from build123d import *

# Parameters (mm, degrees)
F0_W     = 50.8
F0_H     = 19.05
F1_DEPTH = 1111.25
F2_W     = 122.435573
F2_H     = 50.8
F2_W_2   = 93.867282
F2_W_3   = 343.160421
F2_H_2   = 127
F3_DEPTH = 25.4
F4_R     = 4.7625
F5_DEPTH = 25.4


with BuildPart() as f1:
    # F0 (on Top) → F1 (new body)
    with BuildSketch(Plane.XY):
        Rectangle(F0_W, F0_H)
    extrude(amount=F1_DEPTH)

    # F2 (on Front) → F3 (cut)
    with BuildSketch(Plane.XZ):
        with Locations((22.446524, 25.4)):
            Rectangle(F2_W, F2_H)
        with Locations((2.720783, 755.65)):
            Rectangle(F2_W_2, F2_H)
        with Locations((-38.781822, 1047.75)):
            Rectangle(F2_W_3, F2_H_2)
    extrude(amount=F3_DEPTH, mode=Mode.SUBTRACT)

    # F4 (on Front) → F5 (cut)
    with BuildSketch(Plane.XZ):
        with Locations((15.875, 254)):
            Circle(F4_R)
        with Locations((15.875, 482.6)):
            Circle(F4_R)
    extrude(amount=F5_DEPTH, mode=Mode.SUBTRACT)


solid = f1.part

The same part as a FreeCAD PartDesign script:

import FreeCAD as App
import Part
import Sketcher
Q = App.Units.Quantity

doc = App.newDocument("Part")
body = doc.addObject("PartDesign::Body", "Body")

# Sketch on XY plane
sketch1 = body.newObject("Sketcher::SketchObject", "Sketch")
sketch1.AttachmentSupport = (doc.getObject("XY_Plane"), [""])
sketch1.MapMode = "FlatFace"
sketch1.addGeometry(Part.LineSegment(App.Vector(-25, 10, 0), App.Vector(-25, -10, 0)), False)
sketch1.addGeometry(Part.LineSegment(App.Vector(-25, -10, 0), App.Vector(25, -10, 0)), False)
sketch1.addGeometry(Part.LineSegment(App.Vector(25, -10, 0), App.Vector(25, 10, 0)), False)
sketch1.addGeometry(Part.LineSegment(App.Vector(25, 10, 0), App.Vector(-25, 10, 0)), False)
sketch1.addConstraint(Sketcher.Constraint("Coincident", 0, 2, 1, 1))
sketch1.addConstraint(Sketcher.Constraint("Coincident", 1, 2, 2, 1))
sketch1.addConstraint(Sketcher.Constraint("Coincident", 2, 2, 3, 1))
sketch1.addConstraint(Sketcher.Constraint("Coincident", 3, 2, 0, 1))
sketch1.addConstraint(Sketcher.Constraint("Vertical", 0))
sketch1.addConstraint(Sketcher.Constraint("Horizontal", 1))
sketch1.addConstraint(Sketcher.Constraint("Vertical", 2))
sketch1.addConstraint(Sketcher.Constraint("Horizontal", 3))
sketch1.addConstraint(Sketcher.Constraint("Symmetric", 0, 2, 2, 2, -1, 1))
sketch1.addConstraint(Sketcher.Constraint("DistanceX", 1, 1, 1, 2, Q("2 in")))
sketch1.addConstraint(Sketcher.Constraint("DistanceY", 0, 2, 0, 1, Q("0.75 in")))
pad1 = body.newObject("PartDesign::Pad", "Pad")
pad1.Profile = sketch1
pad1.Length = Q("43.75 in")

# Sketch on XZ plane
sketch2 = body.newObject("Sketcher::SketchObject", "Sketch001")
sketch2.AttachmentSupport = (doc.getObject("XZ_Plane"), [""])
sketch2.MapMode = "FlatFace"
sketch2.addGeometry(Part.LineSegment(App.Vector(-39, 51, 0), App.Vector(-39, 0, 0)), False)
sketch2.addGeometry(Part.LineSegment(App.Vector(-39, 0, 0), App.Vector(84, 0, 0)), False)
sketch2.addGeometry(Part.LineSegment(App.Vector(84, 0, 0), App.Vector(84, 51, 0)), False)
sketch2.addGeometry(Part.LineSegment(App.Vector(84, 51, 0), App.Vector(-39, 51, 0)), False)
sketch2.addGeometry(Part.LineSegment(App.Vector(-44, 781, 0), App.Vector(-44, 730, 0)), False)
sketch2.addGeometry(Part.LineSegment(App.Vector(-44, 730, 0), App.Vector(50, 730, 0)), False)
sketch2.addGeometry(Part.LineSegment(App.Vector(50, 730, 0), App.Vector(50, 781, 0)), False)
sketch2.addGeometry(Part.LineSegment(App.Vector(50, 781, 0), App.Vector(-44, 781, 0)), False)
sketch2.addGeometry(Part.LineSegment(App.Vector(-210, 1111, 0), App.Vector(-210, 984, 0)), False)
sketch2.addGeometry(Part.LineSegment(App.Vector(-210, 984, 0), App.Vector(133, 984, 0)), False)
sketch2.addGeometry(Part.LineSegment(App.Vector(133, 984, 0), App.Vector(133, 1111, 0)), False)
sketch2.addGeometry(Part.LineSegment(App.Vector(133, 1111, 0), App.Vector(-210, 1111, 0)), False)
sketch2.addConstraint(Sketcher.Constraint("Coincident", 0, 2, 1, 1))
sketch2.addConstraint(Sketcher.Constraint("Coincident", 1, 2, 2, 1))
sketch2.addConstraint(Sketcher.Constraint("Coincident", 2, 2, 3, 1))
sketch2.addConstraint(Sketcher.Constraint("Coincident", 3, 2, 0, 1))
sketch2.addConstraint(Sketcher.Constraint("Coincident", 4, 2, 5, 1))
sketch2.addConstraint(Sketcher.Constraint("Coincident", 5, 2, 6, 1))
sketch2.addConstraint(Sketcher.Constraint("Coincident", 6, 2, 7, 1))
sketch2.addConstraint(Sketcher.Constraint("Coincident", 7, 2, 4, 1))
sketch2.addConstraint(Sketcher.Constraint("Coincident", 8, 2, 9, 1))
sketch2.addConstraint(Sketcher.Constraint("Coincident", 9, 2, 10, 1))
sketch2.addConstraint(Sketcher.Constraint("Coincident", 10, 2, 11, 1))
sketch2.addConstraint(Sketcher.Constraint("Coincident", 11, 2, 8, 1))
sketch2.addConstraint(Sketcher.Constraint("Vertical", 0))
sketch2.addConstraint(Sketcher.Constraint("Horizontal", 1))
sketch2.addConstraint(Sketcher.Constraint("Vertical", 2))
sketch2.addConstraint(Sketcher.Constraint("Horizontal", 3))
sketch2.addConstraint(Sketcher.Constraint("Vertical", 4))
sketch2.addConstraint(Sketcher.Constraint("Horizontal", 5))
sketch2.addConstraint(Sketcher.Constraint("Vertical", 6))
sketch2.addConstraint(Sketcher.Constraint("Horizontal", 7))
sketch2.addConstraint(Sketcher.Constraint("Vertical", 8))
sketch2.addConstraint(Sketcher.Constraint("Horizontal", 9))
sketch2.addConstraint(Sketcher.Constraint("Vertical", 10))
sketch2.addConstraint(Sketcher.Constraint("Horizontal", 11))
sketch2.addConstraint(Sketcher.Constraint("PointOnObject", 0, 2, -1))
sketch2.addConstraint(Sketcher.Constraint("Equal", 2, 4))
sketch2.addConstraint(Sketcher.Constraint("DistanceY", 0, 2, 0, 1, Q("2 in")))
sketch2.addConstraint(Sketcher.Constraint("DistanceY", 8, 2, 8, 1, Q("5 in")))
sketch2.addConstraint(Sketcher.Constraint("DistanceY", 7, 2, 8, 2, Q("8 in")))
sketch2.addConstraint(Sketcher.Constraint("DistanceY", -1, 1, 4, 2, Q("28.75 in")))
sketch2.addConstraint(Sketcher.Constraint("DistanceX", 5, 1, 5, 2, Q("93.867282 mm")))
sketch2.addConstraint(Sketcher.Constraint("DistanceX", 9, 1, 9, 2, Q("343.160421 mm")))
sketch2.addConstraint(Sketcher.Constraint("DistanceX", 1, 1, 1, 2, Q("122.435573 mm")))
sketch2.addConstraint(Sketcher.Constraint("DistanceX", -1, 1, 1, 2, Q("83.66431 mm")))
sketch2.addConstraint(Sketcher.Constraint("DistanceX", -1, 1, 9, 2, Q("132.798388 mm")))
sketch2.addConstraint(Sketcher.Constraint("DistanceX", 4, 2, 2, 2, Q("127.877168 mm")))
pocket1 = body.newObject("PartDesign::Pocket", "Pocket")
pocket1.Profile = sketch2
pocket1.Length = Q("1 in")
pocket1.Reversed = True

# Sketch on XZ plane
sketch3 = body.newObject("Sketcher::SketchObject", "Sketch002")
sketch3.AttachmentSupport = (doc.getObject("XZ_Plane"), [""])
sketch3.MapMode = "FlatFace"
sketch3.addGeometry(Part.Circle(App.Vector(15.9, 254, 0), App.Vector(0, 0, 1), 4.8), False)
sketch3.addGeometry(Part.Circle(App.Vector(15.9, 482.6, 0), App.Vector(0, 0, 1), 4.8), False)
sketch3.addConstraint(Sketcher.Constraint("Equal", 0, 1))
sketch3.addConstraint(Sketcher.Constraint("Vertical", 0, 3, 1, 3))
sketch3.addConstraint(Sketcher.Constraint("Diameter", 0, Q("0.375 in")))
sketch3.addConstraint(Sketcher.Constraint("DistanceY", -1, 1, 0, 3, Q("10 in")))
sketch3.addConstraint(Sketcher.Constraint("DistanceY", -1, 1, 1, 3, Q("19 in")))
sketch3.addConstraint(Sketcher.Constraint("DistanceX", -1, 1, 0, 3, Q("0.625 in")))
pocket2 = body.newObject("PartDesign::Pocket", "Pocket001")
pocket2.Profile = sketch3
pocket2.Length = Q("1 in")
pocket2.Reversed = True

doc.recompute()
